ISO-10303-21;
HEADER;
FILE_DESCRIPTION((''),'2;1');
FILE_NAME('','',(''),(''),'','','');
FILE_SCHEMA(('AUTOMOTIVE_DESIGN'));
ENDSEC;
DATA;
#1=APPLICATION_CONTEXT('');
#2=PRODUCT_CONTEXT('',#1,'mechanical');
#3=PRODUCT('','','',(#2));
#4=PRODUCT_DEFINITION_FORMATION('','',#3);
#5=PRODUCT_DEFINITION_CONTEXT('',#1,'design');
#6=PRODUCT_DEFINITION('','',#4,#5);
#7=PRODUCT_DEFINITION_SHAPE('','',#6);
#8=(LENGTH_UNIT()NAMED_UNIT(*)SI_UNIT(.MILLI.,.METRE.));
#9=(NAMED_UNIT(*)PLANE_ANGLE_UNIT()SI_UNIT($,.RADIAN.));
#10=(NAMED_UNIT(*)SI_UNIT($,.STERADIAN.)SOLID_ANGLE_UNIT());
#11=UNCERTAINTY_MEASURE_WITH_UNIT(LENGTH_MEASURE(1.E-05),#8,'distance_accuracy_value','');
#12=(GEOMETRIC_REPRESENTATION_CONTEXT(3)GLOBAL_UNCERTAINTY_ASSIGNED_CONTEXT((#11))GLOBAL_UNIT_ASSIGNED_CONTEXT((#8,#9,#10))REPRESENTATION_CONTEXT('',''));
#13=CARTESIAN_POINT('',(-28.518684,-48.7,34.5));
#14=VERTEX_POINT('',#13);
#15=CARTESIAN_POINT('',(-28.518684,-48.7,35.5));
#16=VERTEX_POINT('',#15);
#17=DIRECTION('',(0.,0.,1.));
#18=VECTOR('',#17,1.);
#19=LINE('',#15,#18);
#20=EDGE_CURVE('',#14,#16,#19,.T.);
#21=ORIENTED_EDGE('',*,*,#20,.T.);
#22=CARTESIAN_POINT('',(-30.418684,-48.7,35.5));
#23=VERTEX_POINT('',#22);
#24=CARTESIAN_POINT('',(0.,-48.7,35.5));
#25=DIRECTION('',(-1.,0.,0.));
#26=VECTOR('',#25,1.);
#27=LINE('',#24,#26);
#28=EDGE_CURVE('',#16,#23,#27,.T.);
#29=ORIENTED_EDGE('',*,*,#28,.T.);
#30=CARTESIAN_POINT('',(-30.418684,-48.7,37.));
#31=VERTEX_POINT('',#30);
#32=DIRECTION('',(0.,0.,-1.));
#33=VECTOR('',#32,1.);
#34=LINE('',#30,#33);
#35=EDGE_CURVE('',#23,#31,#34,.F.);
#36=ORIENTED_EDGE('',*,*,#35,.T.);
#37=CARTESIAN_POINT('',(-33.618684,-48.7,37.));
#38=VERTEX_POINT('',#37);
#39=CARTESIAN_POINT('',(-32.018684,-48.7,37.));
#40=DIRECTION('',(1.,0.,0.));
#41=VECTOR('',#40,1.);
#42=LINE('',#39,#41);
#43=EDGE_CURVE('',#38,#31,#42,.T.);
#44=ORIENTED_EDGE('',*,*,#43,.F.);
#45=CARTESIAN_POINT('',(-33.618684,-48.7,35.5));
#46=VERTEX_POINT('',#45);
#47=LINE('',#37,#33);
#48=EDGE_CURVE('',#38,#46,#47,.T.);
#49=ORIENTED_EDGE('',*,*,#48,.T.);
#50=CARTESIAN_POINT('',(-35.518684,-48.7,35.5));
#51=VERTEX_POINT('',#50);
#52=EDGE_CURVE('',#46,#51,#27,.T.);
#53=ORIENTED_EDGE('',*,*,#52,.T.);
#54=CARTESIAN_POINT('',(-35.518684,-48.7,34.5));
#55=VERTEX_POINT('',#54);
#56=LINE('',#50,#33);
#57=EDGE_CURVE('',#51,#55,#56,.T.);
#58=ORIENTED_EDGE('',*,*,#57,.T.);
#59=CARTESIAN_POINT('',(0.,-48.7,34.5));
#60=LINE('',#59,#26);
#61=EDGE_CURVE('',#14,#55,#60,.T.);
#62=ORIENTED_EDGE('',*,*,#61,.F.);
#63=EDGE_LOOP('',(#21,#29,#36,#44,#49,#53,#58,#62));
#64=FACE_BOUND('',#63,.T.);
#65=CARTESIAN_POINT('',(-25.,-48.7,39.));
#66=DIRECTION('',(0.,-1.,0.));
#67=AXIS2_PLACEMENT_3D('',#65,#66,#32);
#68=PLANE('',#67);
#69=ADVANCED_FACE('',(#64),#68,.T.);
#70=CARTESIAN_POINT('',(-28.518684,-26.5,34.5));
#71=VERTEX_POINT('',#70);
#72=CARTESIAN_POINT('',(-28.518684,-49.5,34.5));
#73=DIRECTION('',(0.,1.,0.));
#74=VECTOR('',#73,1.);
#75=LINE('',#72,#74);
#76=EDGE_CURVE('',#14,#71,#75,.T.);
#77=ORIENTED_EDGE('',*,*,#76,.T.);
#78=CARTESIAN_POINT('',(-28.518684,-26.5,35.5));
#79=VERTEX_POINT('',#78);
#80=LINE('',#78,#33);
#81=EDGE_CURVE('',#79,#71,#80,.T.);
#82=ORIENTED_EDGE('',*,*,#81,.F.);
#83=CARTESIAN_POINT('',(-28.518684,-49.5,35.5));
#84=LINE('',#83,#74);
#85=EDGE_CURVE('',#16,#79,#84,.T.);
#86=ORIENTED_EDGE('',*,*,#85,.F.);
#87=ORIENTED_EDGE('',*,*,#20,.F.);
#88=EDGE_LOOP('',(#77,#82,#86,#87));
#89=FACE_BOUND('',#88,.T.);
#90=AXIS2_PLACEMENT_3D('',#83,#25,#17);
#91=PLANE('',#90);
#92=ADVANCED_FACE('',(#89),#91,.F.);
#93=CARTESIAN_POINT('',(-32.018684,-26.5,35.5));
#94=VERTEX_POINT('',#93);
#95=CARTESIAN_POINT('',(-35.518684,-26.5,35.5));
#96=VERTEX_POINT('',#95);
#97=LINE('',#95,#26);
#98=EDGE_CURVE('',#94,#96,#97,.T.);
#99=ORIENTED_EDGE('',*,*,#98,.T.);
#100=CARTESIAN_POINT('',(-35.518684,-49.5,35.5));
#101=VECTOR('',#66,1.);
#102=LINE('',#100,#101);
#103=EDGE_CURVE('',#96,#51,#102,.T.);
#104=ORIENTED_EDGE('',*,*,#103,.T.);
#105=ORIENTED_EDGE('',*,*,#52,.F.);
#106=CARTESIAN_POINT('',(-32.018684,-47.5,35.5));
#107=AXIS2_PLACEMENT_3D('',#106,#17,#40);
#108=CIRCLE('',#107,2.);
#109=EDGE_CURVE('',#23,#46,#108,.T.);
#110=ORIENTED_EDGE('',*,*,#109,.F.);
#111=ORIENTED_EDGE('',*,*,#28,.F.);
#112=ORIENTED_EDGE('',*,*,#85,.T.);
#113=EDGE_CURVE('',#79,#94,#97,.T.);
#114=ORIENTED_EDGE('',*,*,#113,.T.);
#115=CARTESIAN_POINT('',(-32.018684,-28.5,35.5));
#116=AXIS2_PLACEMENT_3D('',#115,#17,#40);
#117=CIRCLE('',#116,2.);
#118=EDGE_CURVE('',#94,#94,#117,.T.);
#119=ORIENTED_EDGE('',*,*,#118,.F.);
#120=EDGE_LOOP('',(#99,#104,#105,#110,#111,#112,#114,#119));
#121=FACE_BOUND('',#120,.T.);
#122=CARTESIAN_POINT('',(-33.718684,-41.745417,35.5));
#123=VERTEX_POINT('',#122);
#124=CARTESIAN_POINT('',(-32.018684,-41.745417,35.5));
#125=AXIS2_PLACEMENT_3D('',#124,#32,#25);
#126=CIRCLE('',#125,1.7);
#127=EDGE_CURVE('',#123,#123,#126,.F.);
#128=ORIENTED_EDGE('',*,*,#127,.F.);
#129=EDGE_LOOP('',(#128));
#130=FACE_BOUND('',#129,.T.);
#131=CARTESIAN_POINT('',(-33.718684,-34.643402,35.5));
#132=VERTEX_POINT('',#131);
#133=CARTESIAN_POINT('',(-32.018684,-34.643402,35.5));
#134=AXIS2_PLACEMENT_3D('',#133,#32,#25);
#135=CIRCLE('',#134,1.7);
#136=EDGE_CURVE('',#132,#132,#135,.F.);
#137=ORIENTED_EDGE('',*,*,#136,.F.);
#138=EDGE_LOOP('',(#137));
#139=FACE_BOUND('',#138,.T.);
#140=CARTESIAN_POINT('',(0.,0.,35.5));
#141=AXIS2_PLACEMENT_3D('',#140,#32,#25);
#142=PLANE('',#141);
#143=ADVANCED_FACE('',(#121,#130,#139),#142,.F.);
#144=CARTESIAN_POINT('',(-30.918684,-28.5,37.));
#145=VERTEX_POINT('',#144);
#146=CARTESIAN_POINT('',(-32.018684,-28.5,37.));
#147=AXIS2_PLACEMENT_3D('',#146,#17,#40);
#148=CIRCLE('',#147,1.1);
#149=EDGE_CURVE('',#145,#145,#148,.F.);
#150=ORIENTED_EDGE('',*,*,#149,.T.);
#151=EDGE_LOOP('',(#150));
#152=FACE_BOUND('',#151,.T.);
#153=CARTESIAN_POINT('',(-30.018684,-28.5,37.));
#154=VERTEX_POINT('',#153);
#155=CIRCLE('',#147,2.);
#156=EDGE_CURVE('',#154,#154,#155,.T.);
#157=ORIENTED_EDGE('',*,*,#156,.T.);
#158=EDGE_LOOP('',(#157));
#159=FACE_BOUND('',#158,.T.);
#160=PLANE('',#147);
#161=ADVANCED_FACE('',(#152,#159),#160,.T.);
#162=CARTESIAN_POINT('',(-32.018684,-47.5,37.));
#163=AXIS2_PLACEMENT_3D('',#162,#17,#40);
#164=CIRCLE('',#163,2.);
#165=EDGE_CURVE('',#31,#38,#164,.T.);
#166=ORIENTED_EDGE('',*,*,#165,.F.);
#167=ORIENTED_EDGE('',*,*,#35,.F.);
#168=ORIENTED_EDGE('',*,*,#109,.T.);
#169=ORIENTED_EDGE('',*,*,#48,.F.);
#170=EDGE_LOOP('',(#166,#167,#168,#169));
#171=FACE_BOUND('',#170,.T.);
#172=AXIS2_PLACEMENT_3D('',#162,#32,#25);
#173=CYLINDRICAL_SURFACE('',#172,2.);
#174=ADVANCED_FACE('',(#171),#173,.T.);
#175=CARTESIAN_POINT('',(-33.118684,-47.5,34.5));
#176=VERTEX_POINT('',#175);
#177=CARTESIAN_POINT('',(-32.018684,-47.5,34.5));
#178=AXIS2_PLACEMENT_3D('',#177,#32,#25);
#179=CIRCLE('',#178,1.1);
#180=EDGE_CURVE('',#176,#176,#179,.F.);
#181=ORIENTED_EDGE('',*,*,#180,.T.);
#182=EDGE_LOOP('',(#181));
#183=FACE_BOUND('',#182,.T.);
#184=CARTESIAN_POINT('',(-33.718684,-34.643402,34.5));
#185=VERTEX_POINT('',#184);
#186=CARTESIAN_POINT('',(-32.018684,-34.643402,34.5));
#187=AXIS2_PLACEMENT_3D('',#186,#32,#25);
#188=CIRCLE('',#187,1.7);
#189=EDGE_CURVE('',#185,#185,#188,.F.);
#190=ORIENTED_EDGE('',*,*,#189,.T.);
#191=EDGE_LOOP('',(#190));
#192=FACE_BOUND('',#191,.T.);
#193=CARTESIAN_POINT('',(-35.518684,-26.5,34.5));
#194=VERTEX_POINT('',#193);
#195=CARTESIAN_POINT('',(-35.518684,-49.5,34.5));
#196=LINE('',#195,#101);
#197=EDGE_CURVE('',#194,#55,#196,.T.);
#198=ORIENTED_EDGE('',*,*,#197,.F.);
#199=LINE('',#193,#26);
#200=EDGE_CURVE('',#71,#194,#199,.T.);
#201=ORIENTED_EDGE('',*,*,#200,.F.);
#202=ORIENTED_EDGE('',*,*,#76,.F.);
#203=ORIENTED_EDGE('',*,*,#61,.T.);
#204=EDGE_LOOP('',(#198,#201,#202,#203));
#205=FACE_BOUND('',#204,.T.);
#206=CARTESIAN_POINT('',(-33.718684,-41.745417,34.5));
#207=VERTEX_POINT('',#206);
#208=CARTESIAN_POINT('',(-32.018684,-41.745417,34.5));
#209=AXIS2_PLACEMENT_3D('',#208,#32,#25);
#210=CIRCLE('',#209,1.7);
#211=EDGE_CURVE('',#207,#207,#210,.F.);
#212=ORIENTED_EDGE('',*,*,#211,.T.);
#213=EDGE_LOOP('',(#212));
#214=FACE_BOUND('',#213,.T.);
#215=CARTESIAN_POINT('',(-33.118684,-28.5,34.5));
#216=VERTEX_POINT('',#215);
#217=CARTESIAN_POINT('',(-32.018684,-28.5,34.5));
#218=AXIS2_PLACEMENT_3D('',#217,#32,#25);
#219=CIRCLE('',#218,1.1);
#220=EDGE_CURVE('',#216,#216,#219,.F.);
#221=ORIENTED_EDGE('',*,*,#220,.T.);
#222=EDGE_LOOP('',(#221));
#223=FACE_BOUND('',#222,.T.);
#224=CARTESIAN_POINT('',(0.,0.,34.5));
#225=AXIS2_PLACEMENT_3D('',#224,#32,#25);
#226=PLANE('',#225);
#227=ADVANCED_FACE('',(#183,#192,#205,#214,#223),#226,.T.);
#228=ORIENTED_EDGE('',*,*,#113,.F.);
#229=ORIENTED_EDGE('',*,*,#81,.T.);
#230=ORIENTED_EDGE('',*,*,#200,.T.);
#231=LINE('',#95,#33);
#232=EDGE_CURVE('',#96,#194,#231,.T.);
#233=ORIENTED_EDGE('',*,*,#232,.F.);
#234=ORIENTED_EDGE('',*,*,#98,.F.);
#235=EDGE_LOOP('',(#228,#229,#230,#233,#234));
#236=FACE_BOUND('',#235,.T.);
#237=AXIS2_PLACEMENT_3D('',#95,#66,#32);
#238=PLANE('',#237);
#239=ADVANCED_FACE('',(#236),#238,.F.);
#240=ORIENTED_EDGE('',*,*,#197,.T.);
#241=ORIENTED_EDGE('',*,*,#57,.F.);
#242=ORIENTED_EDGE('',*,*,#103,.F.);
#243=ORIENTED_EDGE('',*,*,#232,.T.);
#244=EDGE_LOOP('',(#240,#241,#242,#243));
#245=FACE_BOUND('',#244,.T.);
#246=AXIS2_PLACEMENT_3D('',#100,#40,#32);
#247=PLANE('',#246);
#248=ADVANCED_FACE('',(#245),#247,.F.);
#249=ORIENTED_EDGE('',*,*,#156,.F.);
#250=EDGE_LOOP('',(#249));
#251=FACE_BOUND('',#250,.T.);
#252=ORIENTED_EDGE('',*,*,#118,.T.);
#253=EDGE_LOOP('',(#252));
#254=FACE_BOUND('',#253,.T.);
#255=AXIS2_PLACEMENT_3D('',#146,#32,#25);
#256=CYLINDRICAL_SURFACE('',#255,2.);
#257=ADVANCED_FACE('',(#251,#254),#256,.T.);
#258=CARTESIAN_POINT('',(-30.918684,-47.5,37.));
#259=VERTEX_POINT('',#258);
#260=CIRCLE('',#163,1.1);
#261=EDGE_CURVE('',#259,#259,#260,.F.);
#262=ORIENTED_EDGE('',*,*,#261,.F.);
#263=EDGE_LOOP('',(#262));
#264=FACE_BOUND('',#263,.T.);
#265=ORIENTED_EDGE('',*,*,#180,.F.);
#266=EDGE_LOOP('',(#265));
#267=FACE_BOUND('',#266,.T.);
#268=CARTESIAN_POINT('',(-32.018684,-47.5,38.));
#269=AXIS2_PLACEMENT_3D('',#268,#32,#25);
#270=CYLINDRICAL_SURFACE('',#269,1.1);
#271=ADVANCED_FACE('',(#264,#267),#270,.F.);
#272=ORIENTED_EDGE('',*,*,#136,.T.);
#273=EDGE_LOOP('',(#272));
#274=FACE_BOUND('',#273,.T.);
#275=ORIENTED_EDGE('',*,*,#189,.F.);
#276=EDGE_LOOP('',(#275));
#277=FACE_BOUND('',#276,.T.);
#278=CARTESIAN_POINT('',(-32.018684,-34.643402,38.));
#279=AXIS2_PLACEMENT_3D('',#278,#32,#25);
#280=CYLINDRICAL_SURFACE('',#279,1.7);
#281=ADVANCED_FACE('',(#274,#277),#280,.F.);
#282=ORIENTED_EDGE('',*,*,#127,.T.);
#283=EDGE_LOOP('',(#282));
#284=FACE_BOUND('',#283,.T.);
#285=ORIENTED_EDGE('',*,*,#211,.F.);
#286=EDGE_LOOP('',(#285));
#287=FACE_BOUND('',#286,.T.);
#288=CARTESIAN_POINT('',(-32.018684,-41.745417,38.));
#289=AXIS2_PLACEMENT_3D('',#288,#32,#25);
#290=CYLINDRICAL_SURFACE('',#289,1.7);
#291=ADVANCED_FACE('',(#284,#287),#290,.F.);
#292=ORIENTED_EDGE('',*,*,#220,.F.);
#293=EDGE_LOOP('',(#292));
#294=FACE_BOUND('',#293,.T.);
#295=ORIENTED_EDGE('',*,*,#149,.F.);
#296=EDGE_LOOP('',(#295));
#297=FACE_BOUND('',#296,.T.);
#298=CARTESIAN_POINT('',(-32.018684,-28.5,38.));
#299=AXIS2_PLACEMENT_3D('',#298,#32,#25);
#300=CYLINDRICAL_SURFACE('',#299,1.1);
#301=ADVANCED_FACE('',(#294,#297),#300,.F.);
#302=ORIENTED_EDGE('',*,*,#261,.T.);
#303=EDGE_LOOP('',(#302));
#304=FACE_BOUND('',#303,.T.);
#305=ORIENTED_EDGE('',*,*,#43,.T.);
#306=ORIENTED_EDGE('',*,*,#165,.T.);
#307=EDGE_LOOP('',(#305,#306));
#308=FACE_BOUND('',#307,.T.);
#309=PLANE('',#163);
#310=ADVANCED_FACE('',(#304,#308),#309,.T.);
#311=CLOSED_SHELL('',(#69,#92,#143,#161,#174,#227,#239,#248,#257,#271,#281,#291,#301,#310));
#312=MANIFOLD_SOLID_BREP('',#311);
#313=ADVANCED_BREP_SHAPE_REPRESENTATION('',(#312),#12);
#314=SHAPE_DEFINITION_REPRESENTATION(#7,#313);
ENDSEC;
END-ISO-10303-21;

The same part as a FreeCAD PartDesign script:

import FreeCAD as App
import Part
import Sketcher

V = App.Vector


def add_polygon(sketch, points):
    """Adds a closed chain of lines whose ends are joined by coincident constraints."""
    first, n = sketch.GeometryCount, len(points)
    for a, b in zip(points, points[1:] + points[:1]):
        sketch.addGeometry(Part.LineSegment(App.Vector(*a, 0), App.Vector(*b, 0)), False)
    for i in range(n):
        sketch.addConstraint(Sketcher.Constraint("Coincident", first + i, 2, first + (i + 1) % n, 1))

doc = App.newDocument("Part")
body = doc.addObject("PartDesign::Body", "Body")

# Sketch on XY plane
sketch1 = body.newObject("Sketcher::SketchObject", "Sketch")
sketch1.AttachmentSupport = (doc.getObject("XY_Plane"), [""])
sketch1.MapMode = "FlatFace"
sketch1.AttachmentOffset = App.Placement(V(0, 0, 34.5), App.Rotation())
add_polygon(sketch1, [(-35.518684, -26.5), (-35.518684, -49.5), (-28.518684, -49.5), (-28.518684, -26.5)])  # lines 0-3
sketch1.addConstraint([
    Sketcher.Constraint("Vertical", 0),
    Sketcher.Constraint("Horizontal", 1),
    Sketcher.Constraint("Vertical", 2),
    Sketcher.Constraint("Horizontal", 3),
    Sketcher.Constraint("DistanceX", 1, 1, 1, 2, 7.0),
    Sketcher.Constraint("DistanceY", 0, 2, 0, 1, 23.0),
    Sketcher.Constraint("DistanceY", 0, 2, -1, 1, 49.5),
    Sketcher.Constraint("DistanceX", 0, 2, -1, 1, 35.518684),
])
pad1 = body.newObject("PartDesign::Pad", "Pad")
pad1.Profile = sketch1
pad1.Length = 1

# Sketch on XY plane
sketch2 = body.newObject("Sketcher::SketchObject", "Sketch001")
sketch2.AttachmentSupport = (doc.getObject("XY_Plane"), [""])
sketch2.MapMode = "FlatFace"
sketch2.AttachmentOffset = App.Placement(V(0, 0, 35.5), App.Rotation())
sketch2.addGeometry([
    Part.Circle(V(-32.018684, -47.5, 0), V(0, 0, 1), 2),
    Part.Circle(V(-32.018684, -28.5, 0), V(0, 0, 1), 2),
], False)
sketch2.addConstraint([
    Sketcher.Constraint("Equal", 0, 1),
    Sketcher.Constraint("Vertical", 0, 3, 1, 3),
    Sketcher.Constraint("Diameter", 0, 4.0),
    Sketcher.Constraint("DistanceY", 0, 3, 1, 3, 19.0),
    Sketcher.Constraint("DistanceY", 0, 3, -1, 1, 47.5),
    Sketcher.Constraint("DistanceX", 0, 3, -1, 1, 32.018684),
])
pad2 = body.newObject("PartDesign::Pad", "Pad001")
pad2.Profile = sketch2
pad2.Length = 1.5

# Sketch on XY plane
sketch3 = body.newObject("Sketcher::SketchObject", "Sketch002")
sketch3.AttachmentSupport = (doc.getObject("XY_Plane"), [""])
sketch3.MapMode = "FlatFace"
sketch3.AttachmentOffset = App.Placement(V(0, 0, 34), App.Rotation())
sketch3.addGeometry([
    Part.Circle(V(-32.018684, -41.745417, 0), V(0, 0, 1), 1.7),
    Part.Circle(V(-32.018684, -34.643402, 0), V(0, 0, 1), 1.7),
    Part.Circle(V(-32.018684, -47.5, 0), V(0, 0, 1), 1.1),
    Part.Circle(V(-32.018684, -28.5, 0), V(0, 0, 1), 1.1),
], False)
sketch3.addConstraint([
    Sketcher.Constraint("Equal", 0, 1),
    Sketcher.Constraint("Equal", 2, 3),
    Sketcher.Constraint("Vertical", 0, 3, 1, 3),
    Sketcher.Constraint("Vertical", 1, 3, 2, 3),
    Sketcher.Constraint("Vertical", 2, 3, 3, 3),
    Sketcher.Constraint("Diameter", 0, 3.4),
    Sketcher.Constraint("Diameter", 2, 2.2),
    Sketcher.Constraint("DistanceY", 2, 3, 3, 3, 19.0),
    Sketcher.Constraint("DistanceY", 2, 3, -1, 1, 47.5),
    Sketcher.Constraint("DistanceX", 0, 3, -1, 1, 32.018684),
    Sketcher.Constraint("DistanceY", 0, 3, -1, 1, 41.745417),
    Sketcher.Constraint("DistanceY", 1, 3, -1, 1, 34.643402),
])
pocket1 = body.newObject("PartDesign::Pocket", "Pocket")
pocket1.Profile = sketch3
pocket1.Length = 4
pocket1.Reversed = True

# Sketch on XY plane
sketch4 = body.newObject("Sketcher::SketchObject", "Sketch003")
sketch4.AttachmentSupport = (doc.getObject("XY_Plane"), [""])
sketch4.MapMode = "FlatFace"
sketch4.AttachmentOffset = App.Placement(V(0, 0, 33), App.Rotation())
add_polygon(sketch4, [(-40, -48.7), (-40, -55), (-25, -55), (-25, -48.7)])  # lines 0-3
sketch4.addConstraint([
    Sketcher.Constraint("Vertical", 0),
    Sketcher.Constraint("Horizontal", 1),
    Sketcher.Constraint("Vertical", 2),
    Sketcher.Constraint("Horizontal", 3),
    Sketcher.Constraint("DistanceX", 1, 1, 1, 2, 15.0),
    Sketcher.Constraint("DistanceY", 0, 2, 0, 1, 6.3),
    Sketcher.Constraint("DistanceX", 0, 2, -1, 1, 40.0),
    Sketcher.Constraint("DistanceY", 0, 2, -1, 1, 55.0),
])
pocket2 = body.newObject("PartDesign::Pocket", "Pocket001")
pocket2.Profile = sketch4
pocket2.Length = 6
pocket2.Reversed = True

doc.recompute()
